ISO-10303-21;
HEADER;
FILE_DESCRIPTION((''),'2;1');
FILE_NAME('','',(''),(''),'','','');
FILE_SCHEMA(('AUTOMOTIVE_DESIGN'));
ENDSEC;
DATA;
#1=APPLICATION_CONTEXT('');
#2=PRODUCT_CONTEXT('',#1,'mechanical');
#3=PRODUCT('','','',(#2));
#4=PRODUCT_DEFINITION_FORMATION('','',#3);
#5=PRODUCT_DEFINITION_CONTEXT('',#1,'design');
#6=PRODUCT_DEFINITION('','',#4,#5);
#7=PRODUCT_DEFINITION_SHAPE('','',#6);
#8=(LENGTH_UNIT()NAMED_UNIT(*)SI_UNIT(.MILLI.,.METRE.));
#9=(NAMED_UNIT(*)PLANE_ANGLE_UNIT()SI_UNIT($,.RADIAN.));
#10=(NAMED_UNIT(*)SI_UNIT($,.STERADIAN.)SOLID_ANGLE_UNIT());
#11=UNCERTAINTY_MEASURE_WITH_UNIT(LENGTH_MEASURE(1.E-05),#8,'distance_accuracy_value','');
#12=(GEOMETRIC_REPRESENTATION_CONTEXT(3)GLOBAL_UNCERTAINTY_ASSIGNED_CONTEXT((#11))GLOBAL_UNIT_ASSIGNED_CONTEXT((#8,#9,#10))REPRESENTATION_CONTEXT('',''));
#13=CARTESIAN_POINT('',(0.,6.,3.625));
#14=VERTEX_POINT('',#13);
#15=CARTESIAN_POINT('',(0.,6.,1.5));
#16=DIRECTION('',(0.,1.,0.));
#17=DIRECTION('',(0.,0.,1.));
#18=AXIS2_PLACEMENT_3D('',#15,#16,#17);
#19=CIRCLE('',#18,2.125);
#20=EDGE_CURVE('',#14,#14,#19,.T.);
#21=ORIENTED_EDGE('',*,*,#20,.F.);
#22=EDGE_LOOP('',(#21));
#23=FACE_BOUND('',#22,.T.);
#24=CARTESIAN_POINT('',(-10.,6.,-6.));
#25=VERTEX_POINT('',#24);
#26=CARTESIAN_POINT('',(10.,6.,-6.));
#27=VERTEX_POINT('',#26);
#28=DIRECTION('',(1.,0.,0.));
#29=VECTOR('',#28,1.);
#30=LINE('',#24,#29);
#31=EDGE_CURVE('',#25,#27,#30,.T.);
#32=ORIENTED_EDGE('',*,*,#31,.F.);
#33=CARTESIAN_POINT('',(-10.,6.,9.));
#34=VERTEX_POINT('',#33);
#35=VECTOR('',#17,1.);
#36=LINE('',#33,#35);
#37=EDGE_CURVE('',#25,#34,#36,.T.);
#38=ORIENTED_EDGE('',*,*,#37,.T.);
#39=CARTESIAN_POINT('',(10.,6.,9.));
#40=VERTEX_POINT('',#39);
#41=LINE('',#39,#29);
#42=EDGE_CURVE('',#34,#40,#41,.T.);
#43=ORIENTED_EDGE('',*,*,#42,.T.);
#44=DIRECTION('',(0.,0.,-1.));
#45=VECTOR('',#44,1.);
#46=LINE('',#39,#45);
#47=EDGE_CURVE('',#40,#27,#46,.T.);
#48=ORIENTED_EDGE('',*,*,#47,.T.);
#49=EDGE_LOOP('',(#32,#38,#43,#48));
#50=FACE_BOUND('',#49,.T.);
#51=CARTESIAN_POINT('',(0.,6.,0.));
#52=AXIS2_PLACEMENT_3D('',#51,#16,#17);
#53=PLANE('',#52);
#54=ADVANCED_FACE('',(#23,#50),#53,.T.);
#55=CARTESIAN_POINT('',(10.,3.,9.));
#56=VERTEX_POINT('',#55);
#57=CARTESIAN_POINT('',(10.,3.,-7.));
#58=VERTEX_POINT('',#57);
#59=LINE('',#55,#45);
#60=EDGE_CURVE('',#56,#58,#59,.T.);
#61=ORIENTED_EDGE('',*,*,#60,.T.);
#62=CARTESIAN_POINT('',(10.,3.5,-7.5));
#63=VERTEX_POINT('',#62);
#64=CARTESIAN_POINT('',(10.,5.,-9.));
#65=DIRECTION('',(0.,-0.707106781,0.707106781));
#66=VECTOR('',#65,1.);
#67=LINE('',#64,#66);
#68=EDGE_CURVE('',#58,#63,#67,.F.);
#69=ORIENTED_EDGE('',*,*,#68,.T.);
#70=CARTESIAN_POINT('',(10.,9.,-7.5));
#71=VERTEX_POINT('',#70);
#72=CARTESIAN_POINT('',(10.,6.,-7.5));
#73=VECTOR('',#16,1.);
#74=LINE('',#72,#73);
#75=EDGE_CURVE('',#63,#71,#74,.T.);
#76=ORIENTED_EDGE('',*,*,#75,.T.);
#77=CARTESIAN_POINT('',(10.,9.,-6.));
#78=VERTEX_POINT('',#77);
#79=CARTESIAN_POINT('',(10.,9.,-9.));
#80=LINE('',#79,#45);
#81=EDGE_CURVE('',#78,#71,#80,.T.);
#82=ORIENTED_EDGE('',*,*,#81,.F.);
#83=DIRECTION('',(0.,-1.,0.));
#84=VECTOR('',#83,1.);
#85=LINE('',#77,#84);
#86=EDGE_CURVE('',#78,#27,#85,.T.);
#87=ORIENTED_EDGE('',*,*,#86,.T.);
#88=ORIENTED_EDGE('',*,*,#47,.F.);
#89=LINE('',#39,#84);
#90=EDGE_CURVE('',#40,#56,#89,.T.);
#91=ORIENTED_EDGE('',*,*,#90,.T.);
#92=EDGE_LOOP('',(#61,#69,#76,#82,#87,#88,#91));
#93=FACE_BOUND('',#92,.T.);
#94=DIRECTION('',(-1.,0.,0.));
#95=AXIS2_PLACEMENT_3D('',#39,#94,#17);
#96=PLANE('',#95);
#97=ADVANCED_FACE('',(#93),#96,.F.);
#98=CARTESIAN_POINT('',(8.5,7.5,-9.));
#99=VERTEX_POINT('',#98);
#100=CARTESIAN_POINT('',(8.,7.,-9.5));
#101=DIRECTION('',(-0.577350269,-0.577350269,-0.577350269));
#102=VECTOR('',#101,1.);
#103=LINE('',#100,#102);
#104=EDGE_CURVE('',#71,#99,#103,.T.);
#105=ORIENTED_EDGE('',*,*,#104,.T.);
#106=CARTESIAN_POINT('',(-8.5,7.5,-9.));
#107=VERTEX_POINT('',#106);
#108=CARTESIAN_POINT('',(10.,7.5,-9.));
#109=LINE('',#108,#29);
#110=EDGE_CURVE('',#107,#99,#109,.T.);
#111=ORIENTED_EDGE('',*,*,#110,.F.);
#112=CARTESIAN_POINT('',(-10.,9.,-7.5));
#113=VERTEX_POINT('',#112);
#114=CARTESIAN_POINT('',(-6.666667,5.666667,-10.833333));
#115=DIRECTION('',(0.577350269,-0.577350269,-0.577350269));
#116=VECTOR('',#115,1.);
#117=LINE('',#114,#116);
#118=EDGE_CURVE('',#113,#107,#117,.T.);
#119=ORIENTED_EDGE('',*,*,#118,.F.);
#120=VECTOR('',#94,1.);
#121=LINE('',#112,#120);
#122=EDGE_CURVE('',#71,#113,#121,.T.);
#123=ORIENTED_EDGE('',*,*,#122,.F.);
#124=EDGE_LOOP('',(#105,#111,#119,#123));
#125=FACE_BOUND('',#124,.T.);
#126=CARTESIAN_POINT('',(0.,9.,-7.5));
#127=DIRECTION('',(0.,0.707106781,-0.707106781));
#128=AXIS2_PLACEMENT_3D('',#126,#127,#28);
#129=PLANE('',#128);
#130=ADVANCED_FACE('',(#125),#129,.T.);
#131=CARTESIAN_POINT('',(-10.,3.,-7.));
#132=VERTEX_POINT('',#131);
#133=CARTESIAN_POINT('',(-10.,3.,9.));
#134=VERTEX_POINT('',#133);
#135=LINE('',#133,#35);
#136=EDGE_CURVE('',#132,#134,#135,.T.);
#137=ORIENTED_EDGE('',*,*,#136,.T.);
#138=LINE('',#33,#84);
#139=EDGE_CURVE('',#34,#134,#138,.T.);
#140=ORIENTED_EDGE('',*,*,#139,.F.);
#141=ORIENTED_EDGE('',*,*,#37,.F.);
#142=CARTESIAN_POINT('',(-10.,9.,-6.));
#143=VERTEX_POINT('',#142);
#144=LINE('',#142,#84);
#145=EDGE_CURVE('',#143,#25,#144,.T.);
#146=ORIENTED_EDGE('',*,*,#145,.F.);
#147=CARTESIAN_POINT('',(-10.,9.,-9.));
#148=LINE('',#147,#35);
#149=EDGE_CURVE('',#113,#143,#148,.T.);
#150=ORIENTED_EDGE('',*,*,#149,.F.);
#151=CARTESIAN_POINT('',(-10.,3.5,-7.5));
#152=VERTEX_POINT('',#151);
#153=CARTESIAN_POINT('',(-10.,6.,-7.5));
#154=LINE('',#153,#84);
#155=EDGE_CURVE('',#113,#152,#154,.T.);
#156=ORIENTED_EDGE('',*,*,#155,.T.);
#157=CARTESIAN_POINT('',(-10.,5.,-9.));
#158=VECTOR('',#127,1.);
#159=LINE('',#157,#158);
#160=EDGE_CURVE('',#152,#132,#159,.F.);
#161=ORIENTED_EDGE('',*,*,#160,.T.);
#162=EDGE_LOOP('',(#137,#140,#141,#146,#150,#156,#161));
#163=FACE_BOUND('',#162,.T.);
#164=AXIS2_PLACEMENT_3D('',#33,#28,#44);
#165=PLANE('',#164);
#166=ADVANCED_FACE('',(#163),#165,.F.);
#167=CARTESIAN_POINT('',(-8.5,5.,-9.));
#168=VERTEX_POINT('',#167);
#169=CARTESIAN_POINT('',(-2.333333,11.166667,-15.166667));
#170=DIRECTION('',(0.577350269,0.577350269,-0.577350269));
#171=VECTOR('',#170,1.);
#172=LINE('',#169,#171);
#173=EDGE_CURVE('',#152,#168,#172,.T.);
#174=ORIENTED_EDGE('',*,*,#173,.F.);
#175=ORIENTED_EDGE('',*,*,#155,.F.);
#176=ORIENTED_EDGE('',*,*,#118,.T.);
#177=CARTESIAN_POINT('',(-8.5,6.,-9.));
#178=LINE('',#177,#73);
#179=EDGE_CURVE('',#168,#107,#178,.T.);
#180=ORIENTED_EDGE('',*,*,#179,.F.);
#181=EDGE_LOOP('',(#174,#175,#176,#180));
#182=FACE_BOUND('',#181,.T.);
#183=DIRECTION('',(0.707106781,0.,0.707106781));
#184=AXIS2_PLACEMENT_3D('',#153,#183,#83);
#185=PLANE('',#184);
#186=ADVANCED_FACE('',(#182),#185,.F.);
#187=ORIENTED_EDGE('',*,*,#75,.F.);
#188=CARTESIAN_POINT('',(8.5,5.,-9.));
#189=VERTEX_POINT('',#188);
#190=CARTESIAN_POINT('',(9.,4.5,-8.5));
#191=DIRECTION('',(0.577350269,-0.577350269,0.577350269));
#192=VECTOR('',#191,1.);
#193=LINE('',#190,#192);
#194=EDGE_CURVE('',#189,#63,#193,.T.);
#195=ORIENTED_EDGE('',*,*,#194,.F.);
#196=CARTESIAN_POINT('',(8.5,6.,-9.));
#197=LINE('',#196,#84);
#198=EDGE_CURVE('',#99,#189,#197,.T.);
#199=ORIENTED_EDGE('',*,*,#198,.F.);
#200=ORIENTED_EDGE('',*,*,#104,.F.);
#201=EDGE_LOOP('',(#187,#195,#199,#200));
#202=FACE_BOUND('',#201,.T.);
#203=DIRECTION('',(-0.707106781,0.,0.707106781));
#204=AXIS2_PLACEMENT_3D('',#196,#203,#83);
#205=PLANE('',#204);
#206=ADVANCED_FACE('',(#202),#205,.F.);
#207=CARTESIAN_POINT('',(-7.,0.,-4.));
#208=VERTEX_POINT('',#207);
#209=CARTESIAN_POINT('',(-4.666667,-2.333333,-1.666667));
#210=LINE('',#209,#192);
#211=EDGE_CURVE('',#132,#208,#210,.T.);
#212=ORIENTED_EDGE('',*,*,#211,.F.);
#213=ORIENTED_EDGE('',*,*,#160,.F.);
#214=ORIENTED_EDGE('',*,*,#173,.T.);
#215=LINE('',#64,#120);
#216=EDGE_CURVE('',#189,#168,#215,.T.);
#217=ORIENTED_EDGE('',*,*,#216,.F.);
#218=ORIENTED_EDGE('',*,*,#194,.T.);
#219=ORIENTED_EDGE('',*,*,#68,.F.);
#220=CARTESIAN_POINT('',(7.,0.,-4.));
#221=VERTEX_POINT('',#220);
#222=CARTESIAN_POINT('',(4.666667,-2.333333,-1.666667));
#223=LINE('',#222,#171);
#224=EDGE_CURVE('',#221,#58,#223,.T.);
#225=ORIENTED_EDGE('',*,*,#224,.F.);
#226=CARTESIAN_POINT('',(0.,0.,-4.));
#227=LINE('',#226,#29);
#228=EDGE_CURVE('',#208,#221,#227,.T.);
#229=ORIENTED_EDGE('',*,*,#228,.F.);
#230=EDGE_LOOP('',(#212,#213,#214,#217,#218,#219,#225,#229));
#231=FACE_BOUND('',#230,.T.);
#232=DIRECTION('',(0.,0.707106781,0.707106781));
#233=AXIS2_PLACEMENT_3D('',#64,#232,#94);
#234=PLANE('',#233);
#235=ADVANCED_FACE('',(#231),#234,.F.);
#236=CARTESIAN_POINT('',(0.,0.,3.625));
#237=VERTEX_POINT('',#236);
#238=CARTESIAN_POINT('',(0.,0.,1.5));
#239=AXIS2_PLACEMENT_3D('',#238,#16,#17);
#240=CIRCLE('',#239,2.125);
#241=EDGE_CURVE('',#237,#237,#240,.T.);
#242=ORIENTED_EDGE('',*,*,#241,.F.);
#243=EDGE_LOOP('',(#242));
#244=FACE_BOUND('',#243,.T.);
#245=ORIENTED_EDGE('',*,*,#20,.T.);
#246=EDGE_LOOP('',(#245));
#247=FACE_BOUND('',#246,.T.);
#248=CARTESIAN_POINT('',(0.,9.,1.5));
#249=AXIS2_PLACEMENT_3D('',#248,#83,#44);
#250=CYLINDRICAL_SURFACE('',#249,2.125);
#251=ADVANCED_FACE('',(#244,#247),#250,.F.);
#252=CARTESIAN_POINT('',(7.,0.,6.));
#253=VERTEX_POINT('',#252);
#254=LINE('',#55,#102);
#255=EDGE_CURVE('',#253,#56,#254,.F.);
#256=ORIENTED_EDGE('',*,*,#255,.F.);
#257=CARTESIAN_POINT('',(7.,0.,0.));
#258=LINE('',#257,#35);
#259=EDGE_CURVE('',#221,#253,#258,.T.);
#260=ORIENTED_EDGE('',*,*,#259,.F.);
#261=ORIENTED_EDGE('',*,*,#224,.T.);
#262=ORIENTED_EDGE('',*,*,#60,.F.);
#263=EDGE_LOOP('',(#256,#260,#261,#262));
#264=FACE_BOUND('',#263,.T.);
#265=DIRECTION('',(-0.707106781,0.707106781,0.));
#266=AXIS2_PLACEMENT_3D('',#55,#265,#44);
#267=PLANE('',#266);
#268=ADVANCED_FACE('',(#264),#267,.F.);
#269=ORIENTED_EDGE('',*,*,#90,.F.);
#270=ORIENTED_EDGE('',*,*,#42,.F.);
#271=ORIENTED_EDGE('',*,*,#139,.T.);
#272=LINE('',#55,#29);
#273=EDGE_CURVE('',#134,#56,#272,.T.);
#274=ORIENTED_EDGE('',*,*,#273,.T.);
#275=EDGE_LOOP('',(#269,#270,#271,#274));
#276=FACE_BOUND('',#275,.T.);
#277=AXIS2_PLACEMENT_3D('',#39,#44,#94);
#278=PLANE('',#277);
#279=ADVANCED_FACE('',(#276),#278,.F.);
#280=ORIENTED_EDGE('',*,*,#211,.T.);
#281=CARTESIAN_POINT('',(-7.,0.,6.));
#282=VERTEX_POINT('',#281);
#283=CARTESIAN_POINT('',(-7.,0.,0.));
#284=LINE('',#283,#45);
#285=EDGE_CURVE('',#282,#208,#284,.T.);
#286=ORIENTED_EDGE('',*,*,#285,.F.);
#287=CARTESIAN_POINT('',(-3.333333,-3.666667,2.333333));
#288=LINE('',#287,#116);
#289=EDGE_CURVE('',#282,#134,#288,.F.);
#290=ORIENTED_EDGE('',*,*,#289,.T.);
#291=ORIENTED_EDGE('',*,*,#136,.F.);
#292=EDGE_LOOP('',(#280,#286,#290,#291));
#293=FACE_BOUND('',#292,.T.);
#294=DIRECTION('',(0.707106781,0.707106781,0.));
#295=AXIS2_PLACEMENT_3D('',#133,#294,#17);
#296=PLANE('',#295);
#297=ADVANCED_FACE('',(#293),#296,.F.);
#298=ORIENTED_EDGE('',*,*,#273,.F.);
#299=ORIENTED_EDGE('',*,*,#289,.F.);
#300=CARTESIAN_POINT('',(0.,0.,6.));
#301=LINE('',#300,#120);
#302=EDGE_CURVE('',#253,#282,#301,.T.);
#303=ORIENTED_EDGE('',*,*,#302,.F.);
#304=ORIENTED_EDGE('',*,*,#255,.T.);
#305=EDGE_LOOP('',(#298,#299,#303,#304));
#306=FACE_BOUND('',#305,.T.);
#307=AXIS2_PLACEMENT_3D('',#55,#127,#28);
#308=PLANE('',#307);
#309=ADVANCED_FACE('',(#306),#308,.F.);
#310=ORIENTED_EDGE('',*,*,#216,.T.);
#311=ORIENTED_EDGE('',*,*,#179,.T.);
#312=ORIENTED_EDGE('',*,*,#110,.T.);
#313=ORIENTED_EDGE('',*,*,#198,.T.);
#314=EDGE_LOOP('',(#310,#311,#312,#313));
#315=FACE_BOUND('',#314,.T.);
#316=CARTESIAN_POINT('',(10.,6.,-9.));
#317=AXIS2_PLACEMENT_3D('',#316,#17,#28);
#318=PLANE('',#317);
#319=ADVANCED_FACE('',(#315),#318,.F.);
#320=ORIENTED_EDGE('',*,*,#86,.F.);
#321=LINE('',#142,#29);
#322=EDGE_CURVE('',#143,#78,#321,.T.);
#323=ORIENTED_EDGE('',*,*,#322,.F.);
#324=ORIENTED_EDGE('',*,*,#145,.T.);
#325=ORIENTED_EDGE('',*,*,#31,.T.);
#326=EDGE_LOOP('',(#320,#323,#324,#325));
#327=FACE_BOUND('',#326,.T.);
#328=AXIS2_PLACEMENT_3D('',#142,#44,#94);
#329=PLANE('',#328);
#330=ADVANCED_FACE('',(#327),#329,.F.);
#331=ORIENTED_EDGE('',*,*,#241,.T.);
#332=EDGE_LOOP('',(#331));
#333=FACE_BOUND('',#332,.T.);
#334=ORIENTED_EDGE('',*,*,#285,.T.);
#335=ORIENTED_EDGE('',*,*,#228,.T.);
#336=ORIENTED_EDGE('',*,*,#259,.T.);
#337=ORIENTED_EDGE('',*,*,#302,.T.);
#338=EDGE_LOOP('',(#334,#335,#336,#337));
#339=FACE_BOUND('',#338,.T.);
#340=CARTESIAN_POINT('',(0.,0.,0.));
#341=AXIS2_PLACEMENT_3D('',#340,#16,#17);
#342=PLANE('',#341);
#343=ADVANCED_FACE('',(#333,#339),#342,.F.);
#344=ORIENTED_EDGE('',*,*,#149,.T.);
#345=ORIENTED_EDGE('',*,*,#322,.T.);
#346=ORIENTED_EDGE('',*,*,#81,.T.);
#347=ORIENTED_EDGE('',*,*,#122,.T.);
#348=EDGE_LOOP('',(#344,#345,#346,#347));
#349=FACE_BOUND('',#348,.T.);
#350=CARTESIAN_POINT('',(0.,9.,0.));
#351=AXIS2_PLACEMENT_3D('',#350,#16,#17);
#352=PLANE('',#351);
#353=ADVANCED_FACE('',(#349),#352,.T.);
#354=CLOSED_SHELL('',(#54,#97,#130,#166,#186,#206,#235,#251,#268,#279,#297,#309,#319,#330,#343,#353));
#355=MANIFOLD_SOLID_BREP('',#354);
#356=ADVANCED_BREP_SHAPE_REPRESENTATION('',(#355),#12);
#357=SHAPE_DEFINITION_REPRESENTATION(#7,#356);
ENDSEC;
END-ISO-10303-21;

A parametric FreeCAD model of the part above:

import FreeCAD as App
import Part
import Sketcher
from FreeCAD import Vector
Q = App.Units.Quantity


def edges_at(feature, points):
    """Names of the edges that pass closest to the given points."""
    edges = feature.Shape.Edges
    near = lambda p: min(range(len(edges)), key=lambda i: edges[i].distToShape(Part.Vertex(*p))[0])
    return sorted({f"Edge{near(p) + 1}" for p in points})

doc = App.newDocument("Part")
body = doc.addObject("PartDesign::Body", "Body")

# Sketch on XZ plane
sketch1 = doc.addObject("Sketcher::SketchObject", "Sketch")
body.addObject(sketch1)
sketch1.AttachmentSupport = (doc.XZ_Plane, [""])
sketch1.MapMode = "FlatFace"
sketch1.addGeometry(Part.LineSegment(Vector(-10, -9, 0), Vector(-10, 9, 0)), False)
sketch1.addGeometry(Part.LineSegment(Vector(-10, 9, 0), Vector(10, 9, 0)), False)
sketch1.addGeometry(Part.LineSegment(Vector(10, 9, 0), Vector(10, -9, 0)), False)
sketch1.addGeometry(Part.LineSegment(Vector(10, -9, 0), Vector(-10, -9, 0)), False)
sketch1.addConstraint(Sketcher.Constraint("Coincident", 0, 2, 1, 1))
sketch1.addConstraint(Sketcher.Constraint("Coincident", 1, 2, 2, 1))
sketch1.addConstraint(Sketcher.Constraint("Coincident", 2, 2, 3, 1))
sketch1.addConstraint(Sketcher.Constraint("Coincident", 3, 2, 0, 1))
sketch1.addConstraint(Sketcher.Constraint("Vertical", 0))
sketch1.addConstraint(Sketcher.Constraint("Horizontal", 1))
sketch1.addConstraint(Sketcher.Constraint("Vertical", 2))
sketch1.addConstraint(Sketcher.Constraint("Horizontal", 3))
sketch1.addConstraint(Sketcher.Constraint("Symmetric", 0, 2, 2, 2, -1, 1))
sketch1.addConstraint(Sketcher.Constraint("DistanceX", 1, 1, 1, 2, Q("20 mm")))
sketch1.addConstraint(Sketcher.Constraint("DistanceY", 0, 1, 0, 2, Q("18 mm")))
pad1 = doc.addObject("PartDesign::Pad", "Pad")
body.addObject(pad1)
pad1.Profile = sketch1
pad1.Length = 6
pad1.Reversed = True

# Sketch on XZ plane
sketch2 = doc.addObject("Sketcher::SketchObject", "Sketch001")
body.addObject(sketch2)
sketch2.AttachmentSupport = (doc.XZ_Plane, [""])
sketch2.MapMode = "FlatFace"
sketch2.AttachmentOffset = App.Placement(Vector(0, 0, -6), App.Rotation())
sketch2.addGeometry(Part.LineSegment(Vector(-10, -9, 0), Vector(-10, -6, 0)), False)
sketch2.addGeometry(Part.LineSegment(Vector(-10, -6, 0), Vector(10, -6, 0)), False)
sketch2.addGeometry(Part.LineSegment(Vector(10, -6, 0), Vector(10, -9, 0)), False)
sketch2.addGeometry(Part.LineSegment(Vector(10, -9, 0), Vector(-10, -9, 0)), False)
sketch2.addConstraint(Sketcher.Constraint("Coincident", 0, 2, 1, 1))
sketch2.addConstraint(Sketcher.Constraint("Coincident", 1, 2, 2, 1))
sketch2.addConstraint(Sketcher.Constraint("Coincident", 2, 2, 3, 1))
sketch2.addConstraint(Sketcher.Constraint("Coincident", 3, 2, 0, 1))
sketch2.addConstraint(Sketcher.Constraint("Vertical", 0))
sketch2.addConstraint(Sketcher.Constraint("Horizontal", 1))
sketch2.addConstraint(Sketcher.Constraint("Vertical", 2))
sketch2.addConstraint(Sketcher.Constraint("Horizontal", 3))
sketch2.addConstraint(Sketcher.Constraint("DistanceX", 1, 1, 1, 2, Q("20 mm")))
sketch2.addConstraint(Sketcher.Constraint("DistanceY", 0, 1, 0, 2, Q("3 mm")))
sketch2.addConstraint(Sketcher.Constraint("DistanceX", 0, 2, -1, 1, Q("10 mm")))
sketch2.addConstraint(Sketcher.Constraint("DistanceY", 0, 2, -1, 1, Q("6 mm")))
pad2 = doc.addObject("PartDesign::Pad", "Pad001")
body.addObject(pad2)
pad2.Profile = sketch2
pad2.Length = 3
pad2.Reversed = True

# Sketch on XZ plane
sketch3 = doc.addObject("Sketcher::SketchObject", "Sketch002")
body.addObject(sketch3)
sketch3.AttachmentSupport = (doc.XZ_Plane, [""])
sketch3.MapMode = "FlatFace"
sketch3.addGeometry(Part.Circle(Vector(0, 1.5, 0), Vector(0, 0, 1), 2.1), False)
sketch3.addConstraint(Sketcher.Constraint("PointOnObject", 0, 3, -2))
sketch3.addConstraint(Sketcher.Constraint("Diameter", 0, Q("4.25 mm")))
sketch3.addConstraint(Sketcher.Constraint("DistanceY", -1, 1, 0, 3, Q("1.5 mm")))
pocket1 = doc.addObject("PartDesign::Pocket", "Pocket")
body.addObject(pocket1)
pocket1.Profile = sketch3
pocket1.Type = "ThroughAll"
pocket1.Midplane = True
doc.recompute()

chamfer = doc.addObject("PartDesign::Chamfer", "Chamfer")
body.addObject(chamfer)
chamfer.Base = (pocket1, edges_at(pocket1, [(10, 0, 0), (0, 0, 9), (-10, 0, 0)]))
chamfer.Size = 3
doc.recompute()

chamfer2 = doc.addObject("PartDesign::Chamfer", "Chamfer001")
body.addObject(chamfer2)
chamfer2.Base = (chamfer, edges_at(chamfer, [(0, 0, -9)]))
chamfer2.Size = 5
doc.recompute()

chamfer3 = doc.addObject("PartDesign::Chamfer", "Chamfer002")
body.addObject(chamfer3)
chamfer3.Base = (chamfer2, edges_at(chamfer2, [(0, 9, -9), (-10, 7, -9), (10, 7, -9)]))
chamfer3.Size = 1.5

doc.recompute()
